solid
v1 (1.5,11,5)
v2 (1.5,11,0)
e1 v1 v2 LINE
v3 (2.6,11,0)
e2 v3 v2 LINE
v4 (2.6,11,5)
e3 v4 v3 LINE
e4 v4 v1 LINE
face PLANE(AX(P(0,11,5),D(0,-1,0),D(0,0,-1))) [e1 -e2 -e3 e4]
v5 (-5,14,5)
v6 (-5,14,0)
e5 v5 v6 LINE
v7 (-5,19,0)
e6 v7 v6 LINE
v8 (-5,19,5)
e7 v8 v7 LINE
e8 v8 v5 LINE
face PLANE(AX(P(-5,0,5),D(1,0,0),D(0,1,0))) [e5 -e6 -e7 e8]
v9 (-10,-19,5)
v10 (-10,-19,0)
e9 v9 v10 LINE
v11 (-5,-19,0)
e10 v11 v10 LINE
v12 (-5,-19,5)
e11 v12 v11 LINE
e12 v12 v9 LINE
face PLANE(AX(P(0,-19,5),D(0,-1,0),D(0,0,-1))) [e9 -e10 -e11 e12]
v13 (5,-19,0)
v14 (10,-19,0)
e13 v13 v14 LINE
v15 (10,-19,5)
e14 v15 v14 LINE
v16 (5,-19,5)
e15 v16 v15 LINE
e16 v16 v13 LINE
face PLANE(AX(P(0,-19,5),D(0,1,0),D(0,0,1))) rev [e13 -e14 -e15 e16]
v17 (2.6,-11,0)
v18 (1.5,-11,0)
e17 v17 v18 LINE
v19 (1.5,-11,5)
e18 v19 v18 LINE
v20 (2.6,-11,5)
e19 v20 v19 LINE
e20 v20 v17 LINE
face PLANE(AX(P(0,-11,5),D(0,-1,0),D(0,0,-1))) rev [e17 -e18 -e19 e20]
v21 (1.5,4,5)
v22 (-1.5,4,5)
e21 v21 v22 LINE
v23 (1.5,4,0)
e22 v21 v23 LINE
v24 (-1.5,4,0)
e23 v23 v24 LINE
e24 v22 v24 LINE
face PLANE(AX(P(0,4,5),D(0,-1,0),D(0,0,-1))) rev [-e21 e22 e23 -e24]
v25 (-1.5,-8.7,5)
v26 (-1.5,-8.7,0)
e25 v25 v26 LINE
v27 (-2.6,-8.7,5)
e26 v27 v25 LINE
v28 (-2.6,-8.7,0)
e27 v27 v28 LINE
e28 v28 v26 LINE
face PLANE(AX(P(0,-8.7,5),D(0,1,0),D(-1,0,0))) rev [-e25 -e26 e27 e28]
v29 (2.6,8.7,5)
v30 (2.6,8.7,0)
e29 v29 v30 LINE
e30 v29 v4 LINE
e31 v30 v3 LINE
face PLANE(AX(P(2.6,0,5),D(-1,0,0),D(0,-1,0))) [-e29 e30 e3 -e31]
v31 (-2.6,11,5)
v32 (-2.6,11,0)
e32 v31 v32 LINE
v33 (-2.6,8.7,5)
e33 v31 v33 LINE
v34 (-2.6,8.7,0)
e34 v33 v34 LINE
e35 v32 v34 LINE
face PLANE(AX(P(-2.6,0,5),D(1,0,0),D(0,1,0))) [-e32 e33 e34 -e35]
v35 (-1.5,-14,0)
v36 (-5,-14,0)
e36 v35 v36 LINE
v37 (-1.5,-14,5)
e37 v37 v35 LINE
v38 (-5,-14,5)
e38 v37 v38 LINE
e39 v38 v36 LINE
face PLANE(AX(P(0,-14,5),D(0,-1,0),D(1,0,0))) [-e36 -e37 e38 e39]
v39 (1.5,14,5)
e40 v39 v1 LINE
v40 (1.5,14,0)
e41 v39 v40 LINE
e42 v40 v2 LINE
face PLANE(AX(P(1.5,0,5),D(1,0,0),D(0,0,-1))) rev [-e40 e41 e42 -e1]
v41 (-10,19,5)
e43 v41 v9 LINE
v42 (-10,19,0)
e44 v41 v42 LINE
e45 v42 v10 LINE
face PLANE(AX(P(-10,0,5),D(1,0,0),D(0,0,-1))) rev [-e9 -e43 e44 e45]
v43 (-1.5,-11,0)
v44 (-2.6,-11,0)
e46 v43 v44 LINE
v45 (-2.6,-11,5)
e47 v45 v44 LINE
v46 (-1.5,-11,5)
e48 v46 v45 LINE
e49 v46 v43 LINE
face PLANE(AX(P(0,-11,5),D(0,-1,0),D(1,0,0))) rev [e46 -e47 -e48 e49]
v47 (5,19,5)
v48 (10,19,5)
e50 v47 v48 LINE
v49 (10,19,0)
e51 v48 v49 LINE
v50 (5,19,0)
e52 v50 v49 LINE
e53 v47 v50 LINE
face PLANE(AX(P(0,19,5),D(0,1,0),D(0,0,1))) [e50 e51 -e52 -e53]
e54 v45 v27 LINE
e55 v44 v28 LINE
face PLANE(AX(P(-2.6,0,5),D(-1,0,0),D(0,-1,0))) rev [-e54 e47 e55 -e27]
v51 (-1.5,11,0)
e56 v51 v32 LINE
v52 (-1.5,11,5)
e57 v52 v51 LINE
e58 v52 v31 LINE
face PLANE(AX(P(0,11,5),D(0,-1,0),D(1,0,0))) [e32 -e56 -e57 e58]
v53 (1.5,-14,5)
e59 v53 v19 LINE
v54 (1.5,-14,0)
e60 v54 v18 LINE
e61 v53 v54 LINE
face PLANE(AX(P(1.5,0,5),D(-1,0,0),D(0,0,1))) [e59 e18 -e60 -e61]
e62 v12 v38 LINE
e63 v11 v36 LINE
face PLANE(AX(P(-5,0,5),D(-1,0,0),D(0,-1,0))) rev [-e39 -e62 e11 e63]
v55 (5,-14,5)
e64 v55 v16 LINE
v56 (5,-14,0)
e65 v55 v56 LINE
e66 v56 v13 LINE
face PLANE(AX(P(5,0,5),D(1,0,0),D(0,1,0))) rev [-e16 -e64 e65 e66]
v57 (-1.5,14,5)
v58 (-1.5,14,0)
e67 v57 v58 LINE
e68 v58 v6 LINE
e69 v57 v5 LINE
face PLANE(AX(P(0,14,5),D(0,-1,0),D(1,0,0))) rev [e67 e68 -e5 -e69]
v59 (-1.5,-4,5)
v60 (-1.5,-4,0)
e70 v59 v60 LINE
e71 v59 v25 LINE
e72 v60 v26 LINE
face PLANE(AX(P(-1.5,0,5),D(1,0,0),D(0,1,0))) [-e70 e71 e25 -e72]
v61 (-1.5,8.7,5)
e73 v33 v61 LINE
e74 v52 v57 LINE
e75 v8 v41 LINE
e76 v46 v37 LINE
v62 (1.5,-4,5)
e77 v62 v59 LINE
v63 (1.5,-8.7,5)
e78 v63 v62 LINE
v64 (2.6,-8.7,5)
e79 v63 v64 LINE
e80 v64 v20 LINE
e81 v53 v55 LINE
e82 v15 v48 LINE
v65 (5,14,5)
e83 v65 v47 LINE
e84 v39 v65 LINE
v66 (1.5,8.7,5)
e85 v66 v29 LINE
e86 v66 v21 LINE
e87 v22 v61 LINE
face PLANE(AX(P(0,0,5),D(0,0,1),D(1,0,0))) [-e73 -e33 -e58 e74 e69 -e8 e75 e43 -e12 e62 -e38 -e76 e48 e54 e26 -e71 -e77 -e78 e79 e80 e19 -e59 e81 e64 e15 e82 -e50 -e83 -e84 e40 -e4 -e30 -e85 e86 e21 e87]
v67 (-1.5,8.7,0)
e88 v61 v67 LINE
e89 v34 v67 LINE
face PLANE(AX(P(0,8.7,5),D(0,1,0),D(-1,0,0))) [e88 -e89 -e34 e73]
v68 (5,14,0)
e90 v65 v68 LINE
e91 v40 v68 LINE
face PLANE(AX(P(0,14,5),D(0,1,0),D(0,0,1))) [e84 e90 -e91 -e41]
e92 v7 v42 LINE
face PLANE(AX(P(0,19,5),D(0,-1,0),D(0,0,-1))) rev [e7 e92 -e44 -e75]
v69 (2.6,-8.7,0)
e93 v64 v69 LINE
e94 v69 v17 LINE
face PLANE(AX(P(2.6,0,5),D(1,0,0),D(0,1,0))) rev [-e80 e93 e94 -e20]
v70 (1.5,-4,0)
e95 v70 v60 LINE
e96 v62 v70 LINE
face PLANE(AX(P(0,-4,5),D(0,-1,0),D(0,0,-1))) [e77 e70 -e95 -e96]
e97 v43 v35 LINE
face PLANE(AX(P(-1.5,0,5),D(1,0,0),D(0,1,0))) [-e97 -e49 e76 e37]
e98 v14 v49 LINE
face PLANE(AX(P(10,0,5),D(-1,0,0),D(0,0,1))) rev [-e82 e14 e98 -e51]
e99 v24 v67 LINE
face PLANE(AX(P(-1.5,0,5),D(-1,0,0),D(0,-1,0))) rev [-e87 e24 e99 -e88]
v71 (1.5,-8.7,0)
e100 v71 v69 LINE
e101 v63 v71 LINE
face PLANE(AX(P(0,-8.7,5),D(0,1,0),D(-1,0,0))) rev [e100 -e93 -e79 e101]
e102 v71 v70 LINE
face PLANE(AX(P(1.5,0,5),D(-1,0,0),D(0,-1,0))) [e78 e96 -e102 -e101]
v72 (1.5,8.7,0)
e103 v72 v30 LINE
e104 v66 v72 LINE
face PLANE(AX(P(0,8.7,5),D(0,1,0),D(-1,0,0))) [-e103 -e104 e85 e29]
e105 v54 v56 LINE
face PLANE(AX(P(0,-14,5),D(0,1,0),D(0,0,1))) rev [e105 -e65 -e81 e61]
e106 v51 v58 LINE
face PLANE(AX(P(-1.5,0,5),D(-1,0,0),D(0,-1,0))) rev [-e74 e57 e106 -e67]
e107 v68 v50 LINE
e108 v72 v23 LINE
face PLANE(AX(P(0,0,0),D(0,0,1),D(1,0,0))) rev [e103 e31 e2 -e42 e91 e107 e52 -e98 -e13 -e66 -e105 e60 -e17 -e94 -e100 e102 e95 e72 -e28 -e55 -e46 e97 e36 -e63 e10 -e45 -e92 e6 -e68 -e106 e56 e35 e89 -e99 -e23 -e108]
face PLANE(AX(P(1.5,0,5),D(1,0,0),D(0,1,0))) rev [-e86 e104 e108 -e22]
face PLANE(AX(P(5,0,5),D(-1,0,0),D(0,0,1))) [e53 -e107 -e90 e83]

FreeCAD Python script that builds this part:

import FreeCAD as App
import Part
import Sketcher

V = App.Vector
Q = App.Units.Quantity

doc = App.newDocument("Part")
body = doc.addObject("PartDesign::Body", "Body")

sketch1 = body.newObject("Sketcher::SketchObject", "Sketch")
sketch1.AttachmentSupport = (doc.getObject("XY_Plane"), [""])
sketch1.MapMode = "FlatFace"
sketch1.addGeometry([
    Part.LineSegment(V(-2.6, 11, 0), V(-1.5, 11, 0)),
    Part.LineSegment(V(-1.5, 11, 0), V(-1.5, 14, 0)),
    Part.LineSegment(V(-1.5, 14, 0), V(-5, 14, 0)),
    Part.LineSegment(V(-5, 14, 0), V(-5, 19, 0)),
    Part.LineSegment(V(-5, 19, 0), V(-10, 19, 0)),
    Part.LineSegment(V(-10, 19, 0), V(-10, -19, 0)),
    Part.LineSegment(V(-10, -19, 0), V(-5, -19, 0)),
    Part.LineSegment(V(-5, -19, 0), V(-5, -14, 0)),
    Part.LineSegment(V(-5, -14, 0), V(-1.5, -14, 0)),
    Part.LineSegment(V(-1.5, -14, 0), V(-1.5, -11, 0)),
    Part.LineSegment(V(-1.5, -11, 0), V(-2.6, -11, 0)),
    Part.LineSegment(V(-2.6, -11, 0), V(-2.6, -8.7, 0)),
    Part.LineSegment(V(-2.6, -8.7, 0), V(-1.5, -8.7, 0)),
    Part.LineSegment(V(-1.5, -8.7, 0), V(-1.5, -4, 0)),
    Part.LineSegment(V(-1.5, -4, 0), V(1.5, -4, 0)),
    Part.LineSegment(V(1.5, -4, 0), V(1.5, -8.7, 0)),
    Part.LineSegment(V(1.5, -8.7, 0), V(2.6, -8.7, 0)),
    Part.LineSegment(V(2.6, -8.7, 0), V(2.6, -11, 0)),
    Part.LineSegment(V(2.6, -11, 0), V(1.5, -11, 0)),
    Part.LineSegment(V(1.5, -11, 0), V(1.5, -14, 0)),
    Part.LineSegment(V(1.5, -14, 0), V(5, -14, 0)),
    Part.LineSegment(V(5, -14, 0), V(5, -19, 0)),
    Part.LineSegment(V(5, -19, 0), V(10, -19, 0)),
    Part.LineSegment(V(10, -19, 0), V(10, 19, 0)),
    Part.LineSegment(V(10, 19, 0), V(5, 19, 0)),
    Part.LineSegment(V(5, 19, 0), V(5, 14, 0)),
    Part.LineSegment(V(5, 14, 0), V(1.5, 14, 0)),
    Part.LineSegment(V(1.5, 14, 0), V(1.5, 11, 0)),
    Part.LineSegment(V(1.5, 11, 0), V(2.6, 11, 0)),
    Part.LineSegment(V(2.6, 11, 0), V(2.6, 8.7, 0)),
    Part.LineSegment(V(2.6, 8.7, 0), V(1.5, 8.7, 0)),
    Part.LineSegment(V(1.5, 8.7, 0), V(1.5, 4, 0)),
    Part.LineSegment(V(1.5, 4, 0), V(-1.5, 4, 0)),
    Part.LineSegment(V(-1.5, 4, 0), V(-1.5, 8.7, 0)),
    Part.LineSegment(V(-1.5, 8.7, 0), V(-2.6, 8.7, 0)),
    Part.LineSegment(V(-2.6, 8.7, 0), V(-2.6, 11, 0)),
], False)
sketch1.addConstraint([
    Sketcher.Constraint("Coincident", 0, 2, 1, 1),
    Sketcher.Constraint("Coincident", 1, 2, 2, 1),
    Sketcher.Constraint("Coincident", 2, 2, 3, 1),
    Sketcher.Constraint("Coincident", 3, 2, 4, 1),
    Sketcher.Constraint("Coincident", 4, 2, 5, 1),
    Sketcher.Constraint("Coincident", 5, 2, 6, 1),
    Sketcher.Constraint("Coincident", 6, 2, 7, 1),
    Sketcher.Constraint("Coincident", 7, 2, 8, 1),
    Sketcher.Constraint("Coincident", 8, 2, 9, 1),
    Sketcher.Constraint("Coincident", 9, 2, 10, 1),
    Sketcher.Constraint("Coincident", 10, 2, 11, 1),
    Sketcher.Constraint("Coincident", 11, 2, 12, 1),
    Sketcher.Constraint("Coincident", 12, 2, 13, 1),
    Sketcher.Constraint("Coincident", 13, 2, 14, 1),
    Sketcher.Constraint("Coincident", 14, 2, 15, 1),
    Sketcher.Constraint("Coincident", 15, 2, 16, 1),
    Sketcher.Constraint("Coincident", 16, 2, 17, 1),
    Sketcher.Constraint("Coincident", 17, 2, 18, 1),
    Sketcher.Constraint("Coincident", 18, 2, 19, 1),
    Sketcher.Constraint("Coincident", 19, 2, 20, 1),
    Sketcher.Constraint("Coincident", 20, 2, 21, 1),
    Sketcher.Constraint("Coincident", 21, 2, 22, 1),
    Sketcher.Constraint("Coincident", 22, 2, 23, 1),
    Sketcher.Constraint("Coincident", 23, 2, 24, 1),
    Sketcher.Constraint("Coincident", 24, 2, 25, 1),
    Sketcher.Constraint("Coincident", 25, 2, 26, 1),
    Sketcher.Constraint("Coincident", 26, 2, 27, 1),
    Sketcher.Constraint("Coincident", 27, 2, 28, 1),
    Sketcher.Constraint("Coincident", 28, 2, 29, 1),
    Sketcher.Constraint("Coincident", 29, 2, 30, 1),
    Sketcher.Constraint("Coincident", 30, 2, 31, 1),
    Sketcher.Constraint("Coincident", 31, 2, 32, 1),
    Sketcher.Constraint("Coincident", 32, 2, 33, 1),
    Sketcher.Constraint("Coincident", 33, 2, 34, 1),
    Sketcher.Constraint("Coincident", 34, 2, 35, 1),
    Sketcher.Constraint("Coincident", 35, 2, 0, 1),
    Sketcher.Constraint("Horizontal", 0),
    Sketcher.Constraint("Vertical", 1),
    Sketcher.Constraint("Horizontal", 2),
    Sketcher.Constraint("Vertical", 3),
    Sketcher.Constraint("Horizontal", 4),
    Sketcher.Constraint("Vertical", 5),
    Sketcher.Constraint("Horizontal", 6),
    Sketcher.Constraint("Vertical", 7),
    Sketcher.Constraint("Horizontal", 8),
    Sketcher.Constraint("Vertical", 9),
    Sketcher.Constraint("Horizontal", 10),
    Sketcher.Constraint("Vertical", 11),
    Sketcher.Constraint("Horizontal", 12),
    Sketcher.Constraint("Vertical", 13),
    Sketcher.Constraint("Horizontal", 14),
    Sketcher.Constraint("Vertical", 15),
    Sketcher.Constraint("Horizontal", 16),
    Sketcher.Constraint("Vertical", 17),
    Sketcher.Constraint("Horizontal", 18),
    Sketcher.Constraint("Vertical", 19),
    Sketcher.Constraint("Horizontal", 20),
    Sketcher.Constraint("Vertical", 21),
    Sketcher.Constraint("Horizontal", 22),
    Sketcher.Constraint("Vertical", 23),
    Sketcher.Constraint("Horizontal", 24),
    Sketcher.Constraint("Vertical", 25),
    Sketcher.Constraint("Horizontal", 26),
    Sketcher.Constraint("Vertical", 27),
    Sketcher.Constraint("Horizontal", 28),
    Sketcher.Constraint("Vertical", 29),
    Sketcher.Constraint("Horizontal", 30),
    Sketcher.Constraint("Vertical", 31),
    Sketcher.Constraint("Horizontal", 32),
    Sketcher.Constraint("Vertical", 33),
    Sketcher.Constraint("Horizontal", 34),
    Sketcher.Constraint("Vertical", 35),
    Sketcher.Constraint("Symmetric", 0, 2, 18, 2, -1, 1),
    Sketcher.Constraint("Symmetric", 2, 2, 20, 2, -1, 1),
    Sketcher.Constraint("Symmetric", 4, 2, 22, 2, -1, 1),
    Sketcher.Constraint("Symmetric", 6, 2, 24, 2, -1, 1),
    Sketcher.Constraint("Symmetric", 8, 2, 26, 2, -1, 1),
    Sketcher.Constraint("Symmetric", 10, 2, 28, 2, -1, 1),
    Sketcher.Constraint("Symmetric", 12, 2, 30, 2, -1, 1),
    Sketcher.Constraint("Symmetric", 14, 2, 32, 2, -1, 1),
    Sketcher.Constraint("Symmetric", 16, 2, 34, 2, -1, 1),
    Sketcher.Constraint("Symmetric", 12, 2, 15, 2, -2),
    Sketcher.Constraint("Symmetric", 10, 2, 17, 2, -2),
    Sketcher.Constraint("Symmetric", 8, 2, 19, 2, -2),
    Sketcher.Constraint("Symmetric", 6, 2, 21, 2, -2),
    Sketcher.Constraint("Vertical", 9, 2, 12, 2),
    Sketcher.Constraint("Equal", 32, 1),
    Sketcher.Constraint("Equal", 24, 3),
    Sketcher.Constraint("DistanceX", 4, 2, 4, 1, Q("5 mm")),
    Sketcher.Constraint("DistanceX", 14, 1, 14, 2, Q("3 mm")),
    Sketcher.Constraint("DistanceY", 5, 2, 5, 1, Q("38 mm")),
    Sketcher.Constraint("DistanceX", 0, 1, 0, 2, Q("1.1 mm")),
    Sketcher.Constraint("DistanceX", 2, 2, 2, 1, Q("3.5 mm")),
    Sketcher.Constraint("DistanceY", 11, 1, 11, 2, Q("2.3 mm")),
    Sketcher.Constraint("DistanceY", 13, 1, 13, 2, Q("4.7 mm")),
])
pad1 = body.newObject("PartDesign::Pad", "Pad")
pad1.Profile = sketch1
pad1.Length = 5

doc.recompute()
